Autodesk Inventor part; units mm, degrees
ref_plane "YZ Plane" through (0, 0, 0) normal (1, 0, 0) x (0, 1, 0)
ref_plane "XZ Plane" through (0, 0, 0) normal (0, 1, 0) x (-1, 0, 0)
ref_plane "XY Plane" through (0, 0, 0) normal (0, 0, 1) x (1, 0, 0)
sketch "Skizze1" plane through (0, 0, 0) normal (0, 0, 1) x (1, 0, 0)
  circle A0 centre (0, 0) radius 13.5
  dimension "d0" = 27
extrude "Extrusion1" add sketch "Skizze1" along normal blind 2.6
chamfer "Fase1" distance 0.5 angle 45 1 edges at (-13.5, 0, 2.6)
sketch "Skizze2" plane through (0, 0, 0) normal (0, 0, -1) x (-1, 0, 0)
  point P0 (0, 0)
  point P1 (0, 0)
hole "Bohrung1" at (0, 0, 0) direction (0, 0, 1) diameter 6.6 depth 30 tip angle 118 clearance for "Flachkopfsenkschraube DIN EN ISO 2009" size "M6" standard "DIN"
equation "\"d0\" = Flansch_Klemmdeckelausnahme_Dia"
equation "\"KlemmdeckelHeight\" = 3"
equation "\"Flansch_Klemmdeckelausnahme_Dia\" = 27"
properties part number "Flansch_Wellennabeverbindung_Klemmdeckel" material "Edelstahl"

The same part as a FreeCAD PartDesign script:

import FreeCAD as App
import Part
import Sketcher
from FreeCAD import Vector


def edges_at(feature, points):
    """Names of the edges that pass closest to the given points."""
    edges = feature.Shape.Edges
    near = lambda p: min(range(len(edges)), key=lambda i: edges[i].distToShape(Part.Vertex(*p))[0])
    return sorted({f"Edge{near(p) + 1}" for p in points})

doc = App.newDocument("Part")
body = doc.addObject("PartDesign::Body", "Body")

# Sketch on XY plane
sketch1 = body.newObject("Sketcher::SketchObject", "Sketch")
sketch1.AttachmentSupport = (doc.getObject("XY_Plane"), [""])
sketch1.MapMode = "FlatFace"
sketch1.addGeometry(Part.Circle(Vector(0, 0, 0), Vector(0, 0, 1), 14), False)
sketch1.addConstraint(Sketcher.Constraint("Coincident", 0, 3, -1, 1))
sketch1.addConstraint(Sketcher.Constraint("Diameter", 0, 27.0))
pad1 = body.newObject("PartDesign::Pad", "Pad")
pad1.Profile = sketch1
pad1.Length = 2.6
doc.recompute()

chamfer = body.newObject("PartDesign::Chamfer", "Chamfer")
chamfer.Base = (pad1, edges_at(pad1, [(-13.5, 0, 2.6)]))
chamfer.Size = 0.5

# Sketch on XY plane
sketch2 = body.newObject("Sketcher::SketchObject", "Sketch001")
sketch2.AttachmentSupport = (doc.getObject("XY_Plane"), [""])
sketch2.MapMode = "FlatFace"
sketch2.addGeometry(Part.Circle(Vector(0, 0, 0), Vector(0, 0, 1), 3.3), False)
sketch2.addConstraint(Sketcher.Constraint("Coincident", 0, 3, -1, 1))
sketch2.addConstraint(Sketcher.Constraint("Diameter", 0, 6.6))
doc.recompute()
hole = body.newObject("PartDesign::Hole", "Hole")
hole.Profile = sketch2
hole.ThreadType = "None"
hole.Diameter = 6.6
hole.DepthType = "Dimension"
hole.Depth = 30
hole.DrillPoint = "Angled"
hole.DrillPointAngle = 118
hole.Reversed = True

doc.recompute()
